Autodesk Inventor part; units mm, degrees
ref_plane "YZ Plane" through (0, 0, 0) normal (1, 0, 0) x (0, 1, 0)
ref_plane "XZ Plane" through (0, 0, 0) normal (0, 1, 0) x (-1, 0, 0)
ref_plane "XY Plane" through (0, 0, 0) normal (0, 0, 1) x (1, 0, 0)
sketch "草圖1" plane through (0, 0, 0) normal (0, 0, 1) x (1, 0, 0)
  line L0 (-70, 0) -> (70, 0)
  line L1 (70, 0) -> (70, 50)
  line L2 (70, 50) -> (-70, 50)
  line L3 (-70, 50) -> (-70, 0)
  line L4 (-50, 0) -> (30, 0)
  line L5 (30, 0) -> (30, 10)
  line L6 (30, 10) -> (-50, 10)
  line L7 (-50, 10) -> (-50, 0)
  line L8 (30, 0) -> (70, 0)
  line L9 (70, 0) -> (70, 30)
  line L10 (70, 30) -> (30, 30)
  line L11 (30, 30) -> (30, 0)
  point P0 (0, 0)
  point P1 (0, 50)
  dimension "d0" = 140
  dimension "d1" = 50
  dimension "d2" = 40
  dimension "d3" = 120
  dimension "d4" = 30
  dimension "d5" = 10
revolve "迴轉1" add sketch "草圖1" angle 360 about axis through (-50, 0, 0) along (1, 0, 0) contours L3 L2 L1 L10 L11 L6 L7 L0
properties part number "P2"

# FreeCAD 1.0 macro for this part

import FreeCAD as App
import Part
import Sketcher

V = App.Vector
Q = App.Units.Quantity

doc = App.newDocument("Part")
params = doc.addObject("Spreadsheet::Sheet", "Params")
for row, (alias, value) in enumerate([
    ("sketch1_width", "40 mm"),
    ("sketch1_width2", "140 mm"),
    ("sketch1_height", "50 mm"),
    ("sketch1_height2", "10 mm"),
    ("revolution_angle", "360 deg"),
], start=1):
    params.set(f"A{row}", alias)
    params.set(f"B{row}", "=" + value)
    params.setAlias(f"B{row}", alias)

body = doc.addObject("PartDesign::Body", "Body")

# Sketch on XY plane
sketch1 = body.newObject("Sketcher::SketchObject", "Sketch")
sketch1.AttachmentSupport = (doc.getObject("XY_Plane"), [""])
sketch1.MapMode = "FlatFace"
sketch1.addGeometry([
    Part.LineSegment(V(-70, 50, 0), V(-70, 0, 0)),  # 0
    Part.LineSegment(V(-70, 0, 0), V(-50, 0, 0)),  # 1
    Part.LineSegment(V(-50, 0, 0), V(-50, 10, 0)),  # 2
    Part.LineSegment(V(-50, 10, 0), V(30, 10, 0)),  # 3
    Part.LineSegment(V(30, 10, 0), V(30, 30, 0)),  # 4
    Part.LineSegment(V(30, 30, 0), V(70, 30, 0)),  # 5
    Part.LineSegment(V(70, 30, 0), V(70, 50, 0)),  # 6
    Part.LineSegment(V(70, 50, 0), V(-70, 50, 0)),  # 7
], False)
sketch1.addConstraint([
    Sketcher.Constraint("Coincident", 0, 2, 1, 1),
    Sketcher.Constraint("Coincident", 1, 2, 2, 1),
    Sketcher.Constraint("Coincident", 2, 2, 3, 1),
    Sketcher.Constraint("Coincident", 3, 2, 4, 1),
    Sketcher.Constraint("Coincident", 4, 2, 5, 1),
    Sketcher.Constraint("Coincident", 5, 2, 6, 1),
    Sketcher.Constraint("Coincident", 6, 2, 7, 1),
    Sketcher.Constraint("Coincident", 7, 2, 0, 1),
    Sketcher.Constraint("Vertical", 0),
    Sketcher.Constraint("Horizontal", 1),
    Sketcher.Constraint("Vertical", 2),
    Sketcher.Constraint("Horizontal", 3),
    Sketcher.Constraint("Vertical", 4),
    Sketcher.Constraint("Horizontal", 5),
    Sketcher.Constraint("Vertical", 6),
    Sketcher.Constraint("Horizontal", 7),
    Sketcher.Constraint("PointOnObject", 0, 2, -1),
    Sketcher.Constraint("Equal", 1, 4),
    Sketcher.Constraint("Equal", 4, 6),
    Sketcher.Constraint("DistanceX", 5, 1, 5, 2, Q("40 mm")),
    Sketcher.Constraint("DistanceX", 7, 2, 7, 1, Q("140 mm")),
    Sketcher.Constraint("DistanceY", 0, 2, 0, 1, Q("50 mm")),
    Sketcher.Constraint("DistanceY", 2, 1, 2, 2, Q("10 mm")),
    Sketcher.Constraint("DistanceX", 1, 2, -1, 1, Q("50 mm")),
])
sketch1.setExpression("Constraints[19]", "Params.sketch1_width")
sketch1.setExpression("Constraints[20]", "Params.sketch1_width2")
sketch1.setExpression("Constraints[21]", "Params.sketch1_height")
sketch1.setExpression("Constraints[22]", "Params.sketch1_height2")
revolution = body.newObject("PartDesign::Revolution", "Revolution")
revolution.Profile = sketch1
revolution.ReferenceAxis = (sketch1, ["H_Axis"])
revolution.setExpression("Angle", "Params.revolution_angle")

doc.recompute()
